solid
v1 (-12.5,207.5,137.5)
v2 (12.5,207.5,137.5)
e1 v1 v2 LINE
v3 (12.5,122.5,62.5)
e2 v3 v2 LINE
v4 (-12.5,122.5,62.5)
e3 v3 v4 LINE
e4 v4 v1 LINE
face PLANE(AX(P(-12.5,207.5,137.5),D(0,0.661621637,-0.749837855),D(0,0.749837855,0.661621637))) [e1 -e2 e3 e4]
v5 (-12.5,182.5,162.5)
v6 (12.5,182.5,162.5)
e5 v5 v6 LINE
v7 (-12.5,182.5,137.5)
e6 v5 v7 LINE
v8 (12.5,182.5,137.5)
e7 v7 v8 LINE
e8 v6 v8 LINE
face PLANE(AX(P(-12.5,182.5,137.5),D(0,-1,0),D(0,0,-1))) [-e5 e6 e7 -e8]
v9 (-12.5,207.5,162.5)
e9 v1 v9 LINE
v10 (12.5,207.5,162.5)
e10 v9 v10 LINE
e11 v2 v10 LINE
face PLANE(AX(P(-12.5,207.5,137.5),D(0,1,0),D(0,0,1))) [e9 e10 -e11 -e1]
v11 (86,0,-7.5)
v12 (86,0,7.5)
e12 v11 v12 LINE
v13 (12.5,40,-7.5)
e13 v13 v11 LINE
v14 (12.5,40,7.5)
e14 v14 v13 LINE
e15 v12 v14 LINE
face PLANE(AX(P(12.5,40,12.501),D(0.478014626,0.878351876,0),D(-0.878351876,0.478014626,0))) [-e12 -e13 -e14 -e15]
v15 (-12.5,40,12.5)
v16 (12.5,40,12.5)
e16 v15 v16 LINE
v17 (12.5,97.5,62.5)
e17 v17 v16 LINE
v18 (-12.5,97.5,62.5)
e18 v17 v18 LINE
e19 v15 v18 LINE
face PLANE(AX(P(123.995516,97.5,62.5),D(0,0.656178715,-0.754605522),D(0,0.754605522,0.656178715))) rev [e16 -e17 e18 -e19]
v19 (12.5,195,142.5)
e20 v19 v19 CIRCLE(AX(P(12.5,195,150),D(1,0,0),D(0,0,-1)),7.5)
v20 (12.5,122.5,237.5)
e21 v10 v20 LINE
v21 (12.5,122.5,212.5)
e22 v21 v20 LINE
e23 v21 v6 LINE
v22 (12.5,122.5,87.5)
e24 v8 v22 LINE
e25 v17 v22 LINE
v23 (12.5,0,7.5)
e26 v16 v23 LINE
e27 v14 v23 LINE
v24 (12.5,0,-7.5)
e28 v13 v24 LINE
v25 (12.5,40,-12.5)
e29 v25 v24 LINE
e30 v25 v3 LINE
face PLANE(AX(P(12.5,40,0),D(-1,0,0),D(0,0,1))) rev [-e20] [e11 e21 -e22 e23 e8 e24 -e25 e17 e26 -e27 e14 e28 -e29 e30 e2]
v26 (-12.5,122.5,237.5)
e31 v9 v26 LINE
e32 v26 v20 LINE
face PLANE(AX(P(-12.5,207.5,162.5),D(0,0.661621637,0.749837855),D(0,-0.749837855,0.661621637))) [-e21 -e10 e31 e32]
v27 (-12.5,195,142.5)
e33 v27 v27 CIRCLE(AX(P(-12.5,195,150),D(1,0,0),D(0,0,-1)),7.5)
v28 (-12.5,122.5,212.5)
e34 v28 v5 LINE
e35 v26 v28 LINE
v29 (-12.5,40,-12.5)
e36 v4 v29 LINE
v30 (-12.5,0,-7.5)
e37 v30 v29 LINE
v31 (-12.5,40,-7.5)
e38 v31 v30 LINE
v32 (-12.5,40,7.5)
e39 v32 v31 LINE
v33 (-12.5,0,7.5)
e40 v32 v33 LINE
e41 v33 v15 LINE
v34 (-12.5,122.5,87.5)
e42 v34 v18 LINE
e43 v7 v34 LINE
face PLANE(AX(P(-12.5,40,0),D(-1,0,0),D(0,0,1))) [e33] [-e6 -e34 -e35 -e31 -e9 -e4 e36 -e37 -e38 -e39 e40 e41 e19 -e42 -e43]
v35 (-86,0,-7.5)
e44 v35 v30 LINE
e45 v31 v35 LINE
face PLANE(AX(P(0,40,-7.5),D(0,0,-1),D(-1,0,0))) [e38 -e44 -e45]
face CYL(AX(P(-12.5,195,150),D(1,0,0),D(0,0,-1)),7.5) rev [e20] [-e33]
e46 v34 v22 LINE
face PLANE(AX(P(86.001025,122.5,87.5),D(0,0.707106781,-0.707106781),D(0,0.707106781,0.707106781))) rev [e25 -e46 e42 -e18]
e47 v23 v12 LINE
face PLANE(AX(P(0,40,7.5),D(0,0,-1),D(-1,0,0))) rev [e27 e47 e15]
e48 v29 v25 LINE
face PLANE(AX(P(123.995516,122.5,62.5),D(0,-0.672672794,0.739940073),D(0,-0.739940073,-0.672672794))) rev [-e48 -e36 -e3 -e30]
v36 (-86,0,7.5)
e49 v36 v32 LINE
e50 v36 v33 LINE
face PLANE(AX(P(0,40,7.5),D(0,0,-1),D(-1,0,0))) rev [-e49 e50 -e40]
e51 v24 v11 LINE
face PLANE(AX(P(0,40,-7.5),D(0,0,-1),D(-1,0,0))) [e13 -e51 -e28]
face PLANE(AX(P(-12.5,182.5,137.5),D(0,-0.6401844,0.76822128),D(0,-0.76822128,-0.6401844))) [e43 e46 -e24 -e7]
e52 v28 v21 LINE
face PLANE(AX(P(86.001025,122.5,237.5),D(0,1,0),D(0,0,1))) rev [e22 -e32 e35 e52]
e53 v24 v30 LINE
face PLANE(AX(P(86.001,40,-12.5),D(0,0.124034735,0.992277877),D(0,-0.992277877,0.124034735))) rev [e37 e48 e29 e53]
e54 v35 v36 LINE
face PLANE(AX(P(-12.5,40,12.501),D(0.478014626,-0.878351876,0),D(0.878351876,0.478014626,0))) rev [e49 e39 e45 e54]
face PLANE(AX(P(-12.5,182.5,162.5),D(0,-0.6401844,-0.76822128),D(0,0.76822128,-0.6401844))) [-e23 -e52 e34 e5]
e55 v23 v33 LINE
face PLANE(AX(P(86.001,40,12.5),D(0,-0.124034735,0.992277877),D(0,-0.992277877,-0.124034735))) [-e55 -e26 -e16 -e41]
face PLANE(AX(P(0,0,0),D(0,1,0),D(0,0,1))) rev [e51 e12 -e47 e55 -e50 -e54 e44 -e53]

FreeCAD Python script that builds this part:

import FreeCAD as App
import Part
import Sketcher

V = App.Vector

doc = App.newDocument("Part")
body = doc.addObject("PartDesign::Body", "Body")

sketch1 = body.newObject("Sketcher::SketchObject", "Sketch")
sketch1.AttachmentSupport = (doc.getObject("XZ_Plane"), [""])
sketch1.MapMode = "FlatFace"
sketch1.addGeometry([
    Part.LineSegment(V(-12, 12, 0), V(12, 12, 0)),
    Part.LineSegment(V(12, 12, 0), V(12, 8, 0)),
    Part.LineSegment(V(12, 8, 0), V(86, 8, 0)),
    Part.LineSegment(V(86, 8, 0), V(86, -8, 0)),
    Part.LineSegment(V(86, -8, 0), V(12, -8, 0)),
    Part.LineSegment(V(12, -8, 0), V(12, -12, 0)),
    Part.LineSegment(V(12, -12, 0), V(-12, -12, 0)),
    Part.LineSegment(V(-12, -12, 0), V(-12, -8, 0)),
    Part.LineSegment(V(-12, -8, 0), V(-86, -8, 0)),
    Part.LineSegment(V(-86, -8, 0), V(-86, 8, 0)),
    Part.LineSegment(V(-86, 8, 0), V(-12, 8, 0)),
    Part.LineSegment(V(-12, 8, 0), V(-12, 12, 0)),
], False)
sketch1.addConstraint([
    Sketcher.Constraint("Coincident", 0, 2, 1, 1),
    Sketcher.Constraint("Coincident", 1, 2, 2, 1),
    Sketcher.Constraint("Coincident", 2, 2, 3, 1),
    Sketcher.Constraint("Coincident", 3, 2, 4, 1),
    Sketcher.Constraint("Coincident", 4, 2, 5, 1),
    Sketcher.Constraint("Coincident", 5, 2, 6, 1),
    Sketcher.Constraint("Coincident", 6, 2, 7, 1),
    Sketcher.Constraint("Coincident", 7, 2, 8, 1),
    Sketcher.Constraint("Coincident", 8, 2, 9, 1),
    Sketcher.Constraint("Coincident", 9, 2, 10, 1),
    Sketcher.Constraint("Coincident", 10, 2, 11, 1),
    Sketcher.Constraint("Coincident", 11, 2, 0, 1),
    Sketcher.Constraint("Horizontal", 0),
    Sketcher.Constraint("Vertical", 1),
    Sketcher.Constraint("Horizontal", 2),
    Sketcher.Constraint("Vertical", 3),
    Sketcher.Constraint("Horizontal", 4),
    Sketcher.Constraint("Vertical", 5),
    Sketcher.Constraint("Horizontal", 6),
    Sketcher.Constraint("Vertical", 7),
    Sketcher.Constraint("Horizontal", 8),
    Sketcher.Constraint("Vertical", 9),
    Sketcher.Constraint("Horizontal", 10),
    Sketcher.Constraint("Vertical", 11),
    Sketcher.Constraint("Symmetric", 0, 2, 6, 2, -1, 1),
    Sketcher.Constraint("Symmetric", 2, 2, 8, 2, -1, 1),
    Sketcher.Constraint("Symmetric", 4, 2, 10, 2, -1, 1),
    Sketcher.Constraint("Symmetric", 4, 2, 7, 2, -2),
    Sketcher.Constraint("DistanceX", 0, 1, 0, 2, 25.0),
    Sketcher.Constraint("DistanceY", 1, 2, 1, 1, 5.0),
    Sketcher.Constraint("DistanceY", 3, 2, 3, 1, 15.0),
    Sketcher.Constraint("DistanceX", 2, 1, 2, 2, 73.5),
])
pad1 = body.newObject("PartDesign::Pad", "Pad")
pad1.Profile = sketch1
pad1.Length = 40
pad1.Reversed = True

sketch2 = body.newObject("Sketcher::SketchObject", "Sketch001")
sketch2.AttachmentSupport = (doc.getObject("XY_Plane"), [""])
sketch2.MapMode = "FlatFace"
sketch2.AttachmentOffset = App.Placement(V(0, 0, -7.5), App.Rotation())
sketch2.addGeometry([
    Part.LineSegment(V(-12, 40, 0), V(-86, 0, 0)),
    Part.LineSegment(V(-86, 0, 0), V(-86, 40, 0)),
    Part.LineSegment(V(-86, 40, 0), V(-12, 40, 0)),
], False)
sketch2.addConstraint([
    Sketcher.Constraint("Coincident", 0, 2, 1, 1),
    Sketcher.Constraint("Coincident", 1, 2, 2, 1),
    Sketcher.Constraint("Coincident", 2, 2, 0, 1),
    Sketcher.Constraint("Vertical", 1),
    Sketcher.Constraint("Horizontal", 2),
    Sketcher.Constraint("PointOnObject", 0, 2, -1),
    Sketcher.Constraint("DistanceY", 1, 1, 1, 2, 40.0),
    Sketcher.Constraint("DistanceX", 2, 1, 2, 2, 73.5),
    Sketcher.Constraint("DistanceX", 0, 2, -1, 1, 86.0),
])
pocket1 = body.newObject("PartDesign::Pocket", "Pocket")
pocket1.Profile = sketch2
pocket1.Length = 15
pocket1.Reversed = True
doc.recompute()

mirrored = body.newObject("PartDesign::Mirrored", "Mirrored")
mirrored.Originals = [pocket1]
mirrored.MirrorPlane = (doc.getObject("YZ_Plane"), [""])
body.Tip = mirrored

sketch3 = body.newObject("Sketcher::SketchObject", "Sketch002")
sketch3.AttachmentSupport = (doc.getObject("YZ_Plane"), [""])
sketch3.MapMode = "FlatFace"
sketch3.AttachmentOffset = App.Placement(V(0, 0, -12.5), App.Rotation())
sketch3.addGeometry([
    Part.LineSegment(V(0, -8, 0), V(40, -12, 0)),
    Part.LineSegment(V(40, -12, 0), V(0, -12, 0)),
    Part.LineSegment(V(0, -12, 0), V(0, -8, 0)),
], False)
sketch3.addConstraint([
    Sketcher.Constraint("Coincident", 0, 2, 1, 1),
    Sketcher.Constraint("Coincident", 1, 2, 2, 1),
    Sketcher.Constraint("Coincident", 2, 2, 0, 1),
    Sketcher.Constraint("Horizontal", 1),
    Sketcher.Constraint("Vertical", 2),
    Sketcher.Constraint("PointOnObject", 1, 2, -2),
    Sketcher.Constraint("DistanceX", 1, 2, 1, 1, 40.0),
    Sketcher.Constraint("DistanceY", 2, 1, 2, 2, 5.0),
    Sketcher.Constraint("DistanceY", 0, 2, -1, 1, 12.5),
])
pocket2 = body.newObject("PartDesign::Pocket", "Pocket001")
pocket2.Profile = sketch3
pocket2.Length = 25
pocket2.Reversed = True
doc.recompute()

mirrored2 = body.newObject("PartDesign::Mirrored", "Mirrored001")
mirrored2.Originals = [pocket2]
mirrored2.MirrorPlane = (doc.getObject("XY_Plane"), [""])
body.Tip = mirrored2
body2 = doc.addObject("PartDesign::Body", "Body001")

sketch4 = body2.newObject("Sketcher::SketchObject", "Sketch003")
sketch4.AttachmentSupport = (doc.getObject("YZ_Plane001"), [""])
sketch4.MapMode = "FlatFace"
sketch4.addGeometry([
    Part.LineSegment(V(122, 88, 0), V(98, 88, 0)),
    Part.LineSegment(V(98, 88, 0), V(98, 62, 0)),
    Part.LineSegment(V(98, 62, 0), V(122, 62, 0)),
    Part.LineSegment(V(122, 62, 0), V(122, 88, 0)),
], False)
sketch4.addConstraint([
    Sketcher.Constraint("Coincident", 0, 2, 1, 1),
    Sketcher.Constraint("Coincident", 1, 2, 2, 1),
    Sketcher.Constraint("Coincident", 2, 2, 3, 1),
    Sketcher.Constraint("Coincident", 3, 2, 0, 1),
    Sketcher.Constraint("Horizontal", 0),
    Sketcher.Constraint("Vertical", 1),
    Sketcher.Constraint("Horizontal", 2),
    Sketcher.Constraint("Vertical", 3),
    Sketcher.Constraint("Equal", 2, 1),
    Sketcher.Constraint("DistanceX", 0, 2, 0, 1, 25.0),
    Sketcher.Constraint("DistanceX", -1, 1, 0, 2, 97.5),
    Sketcher.Constraint("DistanceY", -1, 1, 0, 2, 87.5),
])
pad2 = body2.newObject("PartDesign::Pad", "Pad001")
pad2.Profile = sketch4
pad2.Type = "TwoLengths"
pad2.Length = 12.5
pad2.Length2 = 12.5
body3 = doc.addObject("PartDesign::Body", "Body002")

sketch5 = body3.newObject("Sketcher::SketchObject", "Sketch004")
sketch5.AttachmentSupport = (doc.getObject("YZ_Plane002"), [""])
sketch5.MapMode = "FlatFace"
sketch5.addGeometry([
    Part.LineSegment(V(122, 238, 0), V(98, 238, 0)),
    Part.LineSegment(V(98, 238, 0), V(98, 212, 0)),
    Part.LineSegment(V(98, 212, 0), V(122, 212, 0)),
    Part.LineSegment(V(122, 212, 0), V(122, 238, 0)),
], False)
sketch5.addConstraint([
    Sketcher.Constraint("Coincident", 0, 2, 1, 1),
    Sketcher.Constraint("Coincident", 1, 2, 2, 1),
    Sketcher.Constraint("Coincident", 2, 2, 3, 1),
    Sketcher.Constraint("Coincident", 3, 2, 0, 1),
    Sketcher.Constraint("Horizontal", 0),
    Sketcher.Constraint("Vertical", 1),
    Sketcher.Constraint("Horizontal", 2),
    Sketcher.Constraint("Vertical", 3),
    Sketcher.Constraint("Equal", 2, 1),
    Sketcher.Constraint("DistanceX", 0, 2, 0, 1, 25.0),
    Sketcher.Constraint("DistanceX", -1, 1, 0, 2, 97.5),
    Sketcher.Constraint("DistanceY", -1, 1, 0, 2, 237.5),
])
pad3 = body3.newObject("PartDesign::Pad", "Pad002")
pad3.Profile = sketch5
pad3.Type = "TwoLengths"
pad3.Length = 12.5
pad3.Length2 = 12.5
body.AllowCompound = True
doc.recompute()

boolean = body.newObject("PartDesign::Boolean", "Boolean")
boolean.Type = "Fuse"
boolean.addObjects([body2])

sketch6 = body.newObject("Sketcher::SketchObject", "Sketch005")
sketch6.AttachmentSupport = (doc.getObject("YZ_Plane"), [""])
sketch6.MapMode = "FlatFace"
sketch6.AttachmentOffset = App.Placement(V(0, 0, -12.5), App.Rotation())
sketch6.addGeometry([
    Part.LineSegment(V(98, 62, 0), V(40, 12, 0)),
    Part.LineSegment(V(40, 12, 0), V(40, -12, 0)),
    Part.LineSegment(V(40, -12, 0), V(122, 62, 0)),
    Part.LineSegment(V(122, 62, 0), V(98, 62, 0)),
], False)
sketch6.addConstraint([
    Sketcher.Constraint("Coincident", 0, 2, 1, 1),
    Sketcher.Constraint("Coincident", 1, 2, 2, 1),
    Sketcher.Constraint("Coincident", 2, 2, 3, 1),
    Sketcher.Constraint("Coincident", 3, 2, 0, 1),
    Sketcher.Constraint("Vertical", 1),
    Sketcher.Constraint("Horizontal", 3),
    Sketcher.Constraint("Equal", 3, 1),
    Sketcher.Constraint("DistanceX", 3, 2, 3, 1, 25.0),
    Sketcher.Constraint("DistanceX", -1, 1, 0, 2, 40.0),
    Sketcher.Constraint("DistanceY", 0, 2, 2, 2, 50.0),
    Sketcher.Constraint("DistanceY", -1, 1, 0, 2, 12.5),
    Sketcher.Constraint("DistanceX", -1, 1, 2, 2, 122.5),
])
pad4 = body.newObject("PartDesign::Pad", "Pad003")
pad4.Profile = sketch6
pad4.Length = 25
body4 = doc.addObject("PartDesign::Body", "Body003")

sketch7 = body4.newObject("Sketcher::SketchObject", "Sketch006")
sketch7.AttachmentSupport = (doc.getObject("YZ_Plane003"), [""])
sketch7.MapMode = "FlatFace"
sketch7.addGeometry([
    Part.LineSegment(V(208, 162, 0), V(182, 162, 0)),
    Part.LineSegment(V(182, 162, 0), V(182, 138, 0)),
    Part.LineSegment(V(182, 138, 0), V(208, 138, 0)),
    Part.LineSegment(V(208, 138, 0), V(208, 162, 0)),
    Part.Circle(V(195, 150, 0), V(0, 0, 1), 8),
], False)
sketch7.addConstraint([
    Sketcher.Constraint("Coincident", 0, 2, 1, 1),
    Sketcher.Constraint("Coincident", 1, 2, 2, 1),
    Sketcher.Constraint("Coincident", 2, 2, 3, 1),
    Sketcher.Constraint("Coincident", 3, 2, 0, 1),
    Sketcher.Constraint("Horizontal", 0),
    Sketcher.Constraint("Vertical", 1),
    Sketcher.Constraint("Horizontal", 2),
    Sketcher.Constraint("Vertical", 3),
    Sketcher.Constraint("Equal", 2, 1),
    Sketcher.Constraint("Diameter", 4, 15.0),
    Sketcher.Constraint("DistanceX", 0, 2, 0, 1, 25.0),
    Sketcher.Constraint("DistanceX", -1, 1, 4, 3, 195.0),
    Sketcher.Constraint("DistanceY", -1, 1, 4, 3, 150.0),
    Sketcher.Constraint("DistanceX", -1, 1, 0, 2, 182.5),
    Sketcher.Constraint("DistanceY", -1, 1, 0, 2, 162.5),
])
pad5 = body4.newObject("PartDesign::Pad", "Pad004")
pad5.Profile = sketch7
pad5.Type = "TwoLengths"
pad5.Length = 12.5
pad5.Length2 = 12.5
body.AllowCompound = True
doc.recompute()

boolean2 = body.newObject("PartDesign::Boolean", "Boolean001")
boolean2.Type = "Fuse"
boolean2.addObjects([body4])

sketch8 = body.newObject("Sketcher::SketchObject", "Sketch007")
sketch8.AttachmentSupport = (doc.getObject("YZ_Plane"), [""])
sketch8.MapMode = "FlatFace"
sketch8.addGeometry([
    Part.LineSegment(V(182, 138, 0), V(122, 88, 0)),
    Part.LineSegment(V(122, 88, 0), V(122, 62, 0)),
    Part.LineSegment(V(122, 62, 0), V(208, 138, 0)),
    Part.LineSegment(V(208, 138, 0), V(182, 138, 0)),
], False)
sketch8.addConstraint([
    Sketcher.Constraint("Coincident", 0, 2, 1, 1),
    Sketcher.Constraint("Coincident", 1, 2, 2, 1),
    Sketcher.Constraint("Coincident", 2, 2, 3, 1),
    Sketcher.Constraint("Coincident", 3, 2, 0, 1),
    Sketcher.Constraint("Vertical", 1),
    Sketcher.Constraint("Horizontal", 3),
    Sketcher.Constraint("Equal", 3, 1),
    Sketcher.Constraint("DistanceX", 3, 2, 3, 1, 25.0),
    Sketcher.Constraint("DistanceX", 0, 2, 2, 2, 85.0),
    Sketcher.Constraint("DistanceY", 0, 2, 2, 2, 50.0),
    Sketcher.Constraint("DistanceX", -1, 1, 0, 2, 122.5),
    Sketcher.Constraint("DistanceY", -1, 1, 0, 2, 87.5),
])
pad6 = body.newObject("PartDesign::Pad", "Pad005")
pad6.Profile = sketch8
pad6.Type = "TwoLengths"
pad6.Length = 12.5
pad6.Length2 = 12.5
doc.recompute()

boolean3 = body.newObject("PartDesign::Boolean", "Boolean002")
boolean3.Type = "Fuse"
boolean3.addObjects([body3])

sketch9 = body.newObject("Sketcher::SketchObject", "Sketch008")
sketch9.AttachmentSupport = (doc.getObject("YZ_Plane"), [""])
sketch9.MapMode = "FlatFace"
sketch9.addGeometry([
    Part.LineSegment(V(122, 212, 0), V(182, 162, 0)),
    Part.LineSegment(V(182, 162, 0), V(208, 162, 0)),
    Part.LineSegment(V(208, 162, 0), V(122, 238, 0)),
    Part.LineSegment(V(122, 238, 0), V(122, 212, 0)),
], False)
sketch9.addConstraint([
    Sketcher.Constraint("Coincident", 0, 2, 1, 1),
    Sketcher.Constraint("Coincident", 1, 2, 2, 1),
    Sketcher.Constraint("Coincident", 2, 2, 3, 1),
    Sketcher.Constraint("Coincident", 3, 2, 0, 1),
    Sketcher.Constraint("Horizontal", 1),
    Sketcher.Constraint("Vertical", 3),
    Sketcher.Constraint("Equal", 1, 3),
    Sketcher.Constraint("DistanceX", 1, 1, 1, 2, 25.0),
    Sketcher.Constraint("DistanceX", 2, 2, 0, 2, 60.0),
    Sketcher.Constraint("DistanceY", 0, 2, 2, 2, 75.0),
    Sketcher.Constraint("DistanceX", -1, 1, 0, 2, 182.5),
    Sketcher.Constraint("DistanceY", -1, 1, 0, 2, 162.5),
])
pad7 = body.newObject("PartDesign::Pad", "Pad006")
pad7.Profile = sketch9
pad7.Type = "TwoLengths"
pad7.Length = 12.5
pad7.Length2 = 12.5

sketch10 = body.newObject("Sketcher::SketchObject", "Sketch009")
sketch10.AttachmentSupport = (doc.getObject("YZ_Plane"), [""])
sketch10.MapMode = "FlatFace"
sketch10.AttachmentOffset = App.Placement(V(0, 0, -12.5), App.Rotation())
sketch10.addGeometry([
    Part.LineSegment(V(122, 212, 0), V(98, 212, 0)),
    Part.LineSegment(V(98, 212, 0), V(98, 238, 0)),
    Part.LineSegment(V(98, 238, 0), V(122, 238, 0)),
    Part.LineSegment(V(122, 238, 0), V(122, 212, 0)),
], False)
sketch10.addConstraint([
    Sketcher.Constraint("Coincident", 0, 2, 1, 1),
    Sketcher.Constraint("Coincident", 1, 2, 2, 1),
    Sketcher.Constraint("Coincident", 2, 2, 3, 1),
    Sketcher.Constraint("Coincident", 3, 2, 0, 1),
    Sketcher.Constraint("Horizontal", 0),
    Sketcher.Constraint("Vertical", 1),
    Sketcher.Constraint("Horizontal", 2),
    Sketcher.Constraint("Vertical", 3),
    Sketcher.Constraint("Equal", 2, 1),
    Sketcher.Constraint("DistanceX", 0, 2, 0, 1, 25.0),
    Sketcher.Constraint("DistanceX", -1, 1, 0, 2, 97.5),
    Sketcher.Constraint("DistanceY", -1, 1, 0, 2, 212.5),
])
pocket3 = body.newObject("PartDesign::Pocket", "Pocket002")
pocket3.Profile = sketch10
pocket3.Type = "UpToFirst"
pocket3.Reversed = True

sketch11 = body.newObject("Sketcher::SketchObject", "Sketch010")
sketch11.AttachmentSupport = (doc.getObject("YZ_Plane"), [""])
sketch11.MapMode = "FlatFace"
sketch11.AttachmentOffset = App.Placement(V(0, 0, -12.5), App.Rotation())
sketch11.addGeometry([
    Part.LineSegment(V(122, 88, 0), V(98, 62, 0)),
    Part.LineSegment(V(98, 62, 0), V(98, 88, 0)),
    Part.LineSegment(V(98, 88, 0), V(122, 88, 0)),
], False)
sketch11.addConstraint([
    Sketcher.Constraint("Coincident", 0, 2, 1, 1),
    Sketcher.Constraint("Coincident", 1, 2, 2, 1),
    Sketcher.Constraint("Coincident", 2, 2, 0, 1),
    Sketcher.Constraint("Vertical", 1),
    Sketcher.Constraint("Horizontal", 2),
    Sketcher.Constraint("Equal", 2, 1),
    Sketcher.Constraint("DistanceX", 2, 1, 2, 2, 25.0),
    Sketcher.Constraint("DistanceX", -1, 1, 0, 2, 97.5),
    Sketcher.Constraint("DistanceY", -1, 1, 0, 2, 62.5),
])
pocket4 = body.newObject("PartDesign::Pocket", "Pocket003")
pocket4.Profile = sketch11
pocket4.Type = "UpToFirst"
pocket4.Reversed = True

doc.recompute()
